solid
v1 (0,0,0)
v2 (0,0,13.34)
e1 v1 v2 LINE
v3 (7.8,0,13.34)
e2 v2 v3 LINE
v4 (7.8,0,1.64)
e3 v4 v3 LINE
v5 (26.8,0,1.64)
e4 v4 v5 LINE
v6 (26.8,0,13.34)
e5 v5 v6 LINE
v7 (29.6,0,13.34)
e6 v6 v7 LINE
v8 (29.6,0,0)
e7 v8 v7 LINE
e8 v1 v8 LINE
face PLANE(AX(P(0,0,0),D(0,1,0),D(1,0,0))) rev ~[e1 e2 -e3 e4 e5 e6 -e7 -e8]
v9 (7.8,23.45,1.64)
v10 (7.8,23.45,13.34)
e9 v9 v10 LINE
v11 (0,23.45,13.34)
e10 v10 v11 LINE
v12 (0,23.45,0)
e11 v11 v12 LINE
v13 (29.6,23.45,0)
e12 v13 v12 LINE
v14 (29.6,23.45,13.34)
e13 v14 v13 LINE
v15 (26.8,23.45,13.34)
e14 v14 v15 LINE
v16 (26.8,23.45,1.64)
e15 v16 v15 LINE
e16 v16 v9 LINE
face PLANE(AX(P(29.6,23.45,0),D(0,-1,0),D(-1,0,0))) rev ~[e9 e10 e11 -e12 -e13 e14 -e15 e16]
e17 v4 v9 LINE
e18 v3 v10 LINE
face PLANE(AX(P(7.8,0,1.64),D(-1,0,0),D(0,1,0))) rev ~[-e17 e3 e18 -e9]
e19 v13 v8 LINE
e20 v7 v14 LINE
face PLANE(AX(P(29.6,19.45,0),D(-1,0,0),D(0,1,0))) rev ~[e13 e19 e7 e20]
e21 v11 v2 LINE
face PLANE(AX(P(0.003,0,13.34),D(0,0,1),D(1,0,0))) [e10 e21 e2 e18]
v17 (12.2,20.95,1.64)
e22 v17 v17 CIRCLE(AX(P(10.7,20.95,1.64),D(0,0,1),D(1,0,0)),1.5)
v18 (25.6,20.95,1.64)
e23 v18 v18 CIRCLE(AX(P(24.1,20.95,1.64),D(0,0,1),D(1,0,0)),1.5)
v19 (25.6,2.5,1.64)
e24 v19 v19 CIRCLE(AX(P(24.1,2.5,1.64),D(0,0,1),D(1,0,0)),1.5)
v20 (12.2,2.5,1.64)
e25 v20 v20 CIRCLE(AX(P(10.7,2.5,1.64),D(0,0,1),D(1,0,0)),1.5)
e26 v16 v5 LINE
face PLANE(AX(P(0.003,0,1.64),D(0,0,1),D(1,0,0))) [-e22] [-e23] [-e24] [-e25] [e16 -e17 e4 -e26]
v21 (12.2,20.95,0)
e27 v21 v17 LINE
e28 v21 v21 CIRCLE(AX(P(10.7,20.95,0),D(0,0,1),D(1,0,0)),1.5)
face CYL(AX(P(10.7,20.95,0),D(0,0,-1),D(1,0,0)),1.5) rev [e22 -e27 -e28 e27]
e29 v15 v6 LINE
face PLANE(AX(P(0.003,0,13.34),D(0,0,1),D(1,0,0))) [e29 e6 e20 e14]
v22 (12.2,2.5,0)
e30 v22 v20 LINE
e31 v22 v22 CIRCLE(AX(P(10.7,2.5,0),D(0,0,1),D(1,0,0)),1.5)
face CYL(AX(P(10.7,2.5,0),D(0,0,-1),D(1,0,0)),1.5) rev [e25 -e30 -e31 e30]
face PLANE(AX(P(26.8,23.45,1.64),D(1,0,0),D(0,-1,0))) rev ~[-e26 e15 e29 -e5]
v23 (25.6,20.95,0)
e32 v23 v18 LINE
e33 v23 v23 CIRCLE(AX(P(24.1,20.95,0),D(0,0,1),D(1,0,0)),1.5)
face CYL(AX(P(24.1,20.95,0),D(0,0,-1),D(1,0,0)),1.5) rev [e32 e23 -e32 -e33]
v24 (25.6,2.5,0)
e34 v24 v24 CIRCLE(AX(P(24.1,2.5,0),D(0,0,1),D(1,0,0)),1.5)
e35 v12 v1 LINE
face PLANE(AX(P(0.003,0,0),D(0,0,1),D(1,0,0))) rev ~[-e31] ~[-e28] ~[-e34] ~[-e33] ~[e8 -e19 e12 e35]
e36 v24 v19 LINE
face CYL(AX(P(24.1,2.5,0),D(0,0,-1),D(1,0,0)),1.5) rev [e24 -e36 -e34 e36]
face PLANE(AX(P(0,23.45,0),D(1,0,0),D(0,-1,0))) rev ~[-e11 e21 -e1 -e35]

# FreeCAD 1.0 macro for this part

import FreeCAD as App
import Part
import Sketcher
Q = App.Units.Quantity


def add_polygon(sketch, points):
    """Adds a closed chain of lines whose ends are joined by coincident constraints."""
    first, n = sketch.GeometryCount, len(points)
    for a, b in zip(points, points[1:] + points[:1]):
        sketch.addGeometry(Part.LineSegment(App.Vector(*a, 0), App.Vector(*b, 0)), False)
    for i in range(n):
        sketch.addConstraint(Sketcher.Constraint("Coincident", first + i, 2, first + (i + 1) % n, 1))

doc = App.newDocument("Part")
params = doc.addObject("Spreadsheet::Sheet", "Params")
for row, (alias, value) in enumerate([
    ("sketch1_diameter", "3 mm"),
    ("sketch1_width", "29.6 mm"),
    ("sketch1_height", "23.45 mm"),
    ("pad1_length", "1.64 mm"),
    ("sketch2_width", "2.8 mm"),
    ("sketch2_width2", "7.8 mm"),
    ("sketch2_height", "23.45 mm"),
    ("pad2_length", "11.7 mm"),
], start=1):
    params.set(f"A{row}", alias)
    params.set(f"B{row}", "=" + value)
    params.setAlias(f"B{row}", alias)

body = doc.addObject("PartDesign::Body", "Body")

# Sketch on XY plane
sketch1 = body.newObject("Sketcher::SketchObject", "Sketch")
sketch1.AttachmentSupport = (doc.getObject("XY_Plane"), [""])
sketch1.MapMode = "FlatFace"
add_polygon(sketch1, [(0, 23.45), (0, 0), (29.6, 0), (29.6, 23.45)])  # lines 0-3
sketch1.addGeometry(Part.Circle(App.Vector(10.7, 2.5, 0), App.Vector(0, 0, 1), 1.5), False)  # 4
sketch1.addGeometry(Part.Circle(App.Vector(24.1, 2.5, 0), App.Vector(0, 0, 1), 1.5), False)  # 5
sketch1.addGeometry(Part.Circle(App.Vector(10.7, 20.95, 0), App.Vector(0, 0, 1), 1.5), False)  # 6
sketch1.addGeometry(Part.Circle(App.Vector(24.1, 20.95, 0), App.Vector(0, 0, 1), 1.5), False)  # 7
sketch1.addConstraint([
    Sketcher.Constraint("Vertical", 0),
    Sketcher.Constraint("Horizontal", 1),
    Sketcher.Constraint("Vertical", 2),
    Sketcher.Constraint("Horizontal", 3),
    Sketcher.Constraint("Coincident", 0, 2, -1, 1),
    Sketcher.Constraint("Equal", 4, 5),
    Sketcher.Constraint("Equal", 5, 6),
    Sketcher.Constraint("Equal", 6, 7),
    Sketcher.Constraint("Horizontal", 4, 3, 5, 3),
    Sketcher.Constraint("Horizontal", 6, 3, 7, 3),
    Sketcher.Constraint("Vertical", 4, 3, 6, 3),
    Sketcher.Constraint("Vertical", 5, 3, 7, 3),
    Sketcher.Constraint("Diameter", 4, Q("3 mm")),
    Sketcher.Constraint("DistanceX", 1, 1, 1, 2, Q("29.6 mm")),
    Sketcher.Constraint("DistanceY", 0, 2, 0, 1, Q("23.45 mm")),
    Sketcher.Constraint("DistanceX", -1, 1, 4, 3, Q("10.7 mm")),
    Sketcher.Constraint("DistanceY", -1, 1, 4, 3, Q("2.5 mm")),
    Sketcher.Constraint("DistanceX", -1, 1, 5, 3, Q("24.1 mm")),
    Sketcher.Constraint("DistanceY", 7, 3, 2, 2, Q("2.5 mm")),
])
sketch1.setExpression("Constraints[16]", "Params.sketch1_diameter")
sketch1.setExpression("Constraints[17]", "Params.sketch1_width")
sketch1.setExpression("Constraints[18]", "Params.sketch1_height")
pad1 = body.newObject("PartDesign::Pad", "Pad")
pad1.Profile = sketch1
pad1.setExpression("Length", "Params.pad1_length")

# Sketch on XY plane
sketch2 = body.newObject("Sketcher::SketchObject", "Sketch001")
sketch2.AttachmentSupport = (doc.getObject("XY_Plane"), [""])
sketch2.MapMode = "FlatFace"
sketch2.AttachmentOffset = App.Placement(App.Vector(0, 0, 1.64), App.Rotation())
add_polygon(sketch2, [(26.8, 0), (29.6, 0), (29.6, 23.45), (26.8, 23.45)])  # lines 0-3
add_polygon(sketch2, [(0, 0), (7.8, 0), (7.8, 23.45), (0, 23.45)])  # lines 4-7
sketch2.addConstraint([
    Sketcher.Constraint("Horizontal", 0),
    Sketcher.Constraint("Vertical", 1),
    Sketcher.Constraint("Horizontal", 2),
    Sketcher.Constraint("Vertical", 3),
    Sketcher.Constraint("Horizontal", 4),
    Sketcher.Constraint("Vertical", 5),
    Sketcher.Constraint("Horizontal", 6),
    Sketcher.Constraint("Vertical", 7),
    Sketcher.Constraint("Coincident", 7, 2, -1, 1),
    Sketcher.Constraint("PointOnObject", 0, 2, -1),
    Sketcher.Constraint("Horizontal", 2, 2, 5, 2),
    Sketcher.Constraint("DistanceX", 0, 1, 0, 2, Q("2.8 mm")),
    Sketcher.Constraint("DistanceX", 4, 1, 4, 2, Q("7.8 mm")),
    Sketcher.Constraint("DistanceX", 4, 2, 3, 2, Q("19 mm")),
    Sketcher.Constraint("DistanceY", 1, 1, 1, 2, Q("23.45 mm")),
])
sketch2.setExpression("Constraints[19]", "Params.sketch2_width")
sketch2.setExpression("Constraints[20]", "Params.sketch2_width2")
sketch2.setExpression("Constraints[22]", "Params.sketch2_height")
pad2 = body.newObject("PartDesign::Pad", "Pad001")
pad2.Profile = sketch2
pad2.setExpression("Length", "Params.pad2_length")

doc.recompute()
